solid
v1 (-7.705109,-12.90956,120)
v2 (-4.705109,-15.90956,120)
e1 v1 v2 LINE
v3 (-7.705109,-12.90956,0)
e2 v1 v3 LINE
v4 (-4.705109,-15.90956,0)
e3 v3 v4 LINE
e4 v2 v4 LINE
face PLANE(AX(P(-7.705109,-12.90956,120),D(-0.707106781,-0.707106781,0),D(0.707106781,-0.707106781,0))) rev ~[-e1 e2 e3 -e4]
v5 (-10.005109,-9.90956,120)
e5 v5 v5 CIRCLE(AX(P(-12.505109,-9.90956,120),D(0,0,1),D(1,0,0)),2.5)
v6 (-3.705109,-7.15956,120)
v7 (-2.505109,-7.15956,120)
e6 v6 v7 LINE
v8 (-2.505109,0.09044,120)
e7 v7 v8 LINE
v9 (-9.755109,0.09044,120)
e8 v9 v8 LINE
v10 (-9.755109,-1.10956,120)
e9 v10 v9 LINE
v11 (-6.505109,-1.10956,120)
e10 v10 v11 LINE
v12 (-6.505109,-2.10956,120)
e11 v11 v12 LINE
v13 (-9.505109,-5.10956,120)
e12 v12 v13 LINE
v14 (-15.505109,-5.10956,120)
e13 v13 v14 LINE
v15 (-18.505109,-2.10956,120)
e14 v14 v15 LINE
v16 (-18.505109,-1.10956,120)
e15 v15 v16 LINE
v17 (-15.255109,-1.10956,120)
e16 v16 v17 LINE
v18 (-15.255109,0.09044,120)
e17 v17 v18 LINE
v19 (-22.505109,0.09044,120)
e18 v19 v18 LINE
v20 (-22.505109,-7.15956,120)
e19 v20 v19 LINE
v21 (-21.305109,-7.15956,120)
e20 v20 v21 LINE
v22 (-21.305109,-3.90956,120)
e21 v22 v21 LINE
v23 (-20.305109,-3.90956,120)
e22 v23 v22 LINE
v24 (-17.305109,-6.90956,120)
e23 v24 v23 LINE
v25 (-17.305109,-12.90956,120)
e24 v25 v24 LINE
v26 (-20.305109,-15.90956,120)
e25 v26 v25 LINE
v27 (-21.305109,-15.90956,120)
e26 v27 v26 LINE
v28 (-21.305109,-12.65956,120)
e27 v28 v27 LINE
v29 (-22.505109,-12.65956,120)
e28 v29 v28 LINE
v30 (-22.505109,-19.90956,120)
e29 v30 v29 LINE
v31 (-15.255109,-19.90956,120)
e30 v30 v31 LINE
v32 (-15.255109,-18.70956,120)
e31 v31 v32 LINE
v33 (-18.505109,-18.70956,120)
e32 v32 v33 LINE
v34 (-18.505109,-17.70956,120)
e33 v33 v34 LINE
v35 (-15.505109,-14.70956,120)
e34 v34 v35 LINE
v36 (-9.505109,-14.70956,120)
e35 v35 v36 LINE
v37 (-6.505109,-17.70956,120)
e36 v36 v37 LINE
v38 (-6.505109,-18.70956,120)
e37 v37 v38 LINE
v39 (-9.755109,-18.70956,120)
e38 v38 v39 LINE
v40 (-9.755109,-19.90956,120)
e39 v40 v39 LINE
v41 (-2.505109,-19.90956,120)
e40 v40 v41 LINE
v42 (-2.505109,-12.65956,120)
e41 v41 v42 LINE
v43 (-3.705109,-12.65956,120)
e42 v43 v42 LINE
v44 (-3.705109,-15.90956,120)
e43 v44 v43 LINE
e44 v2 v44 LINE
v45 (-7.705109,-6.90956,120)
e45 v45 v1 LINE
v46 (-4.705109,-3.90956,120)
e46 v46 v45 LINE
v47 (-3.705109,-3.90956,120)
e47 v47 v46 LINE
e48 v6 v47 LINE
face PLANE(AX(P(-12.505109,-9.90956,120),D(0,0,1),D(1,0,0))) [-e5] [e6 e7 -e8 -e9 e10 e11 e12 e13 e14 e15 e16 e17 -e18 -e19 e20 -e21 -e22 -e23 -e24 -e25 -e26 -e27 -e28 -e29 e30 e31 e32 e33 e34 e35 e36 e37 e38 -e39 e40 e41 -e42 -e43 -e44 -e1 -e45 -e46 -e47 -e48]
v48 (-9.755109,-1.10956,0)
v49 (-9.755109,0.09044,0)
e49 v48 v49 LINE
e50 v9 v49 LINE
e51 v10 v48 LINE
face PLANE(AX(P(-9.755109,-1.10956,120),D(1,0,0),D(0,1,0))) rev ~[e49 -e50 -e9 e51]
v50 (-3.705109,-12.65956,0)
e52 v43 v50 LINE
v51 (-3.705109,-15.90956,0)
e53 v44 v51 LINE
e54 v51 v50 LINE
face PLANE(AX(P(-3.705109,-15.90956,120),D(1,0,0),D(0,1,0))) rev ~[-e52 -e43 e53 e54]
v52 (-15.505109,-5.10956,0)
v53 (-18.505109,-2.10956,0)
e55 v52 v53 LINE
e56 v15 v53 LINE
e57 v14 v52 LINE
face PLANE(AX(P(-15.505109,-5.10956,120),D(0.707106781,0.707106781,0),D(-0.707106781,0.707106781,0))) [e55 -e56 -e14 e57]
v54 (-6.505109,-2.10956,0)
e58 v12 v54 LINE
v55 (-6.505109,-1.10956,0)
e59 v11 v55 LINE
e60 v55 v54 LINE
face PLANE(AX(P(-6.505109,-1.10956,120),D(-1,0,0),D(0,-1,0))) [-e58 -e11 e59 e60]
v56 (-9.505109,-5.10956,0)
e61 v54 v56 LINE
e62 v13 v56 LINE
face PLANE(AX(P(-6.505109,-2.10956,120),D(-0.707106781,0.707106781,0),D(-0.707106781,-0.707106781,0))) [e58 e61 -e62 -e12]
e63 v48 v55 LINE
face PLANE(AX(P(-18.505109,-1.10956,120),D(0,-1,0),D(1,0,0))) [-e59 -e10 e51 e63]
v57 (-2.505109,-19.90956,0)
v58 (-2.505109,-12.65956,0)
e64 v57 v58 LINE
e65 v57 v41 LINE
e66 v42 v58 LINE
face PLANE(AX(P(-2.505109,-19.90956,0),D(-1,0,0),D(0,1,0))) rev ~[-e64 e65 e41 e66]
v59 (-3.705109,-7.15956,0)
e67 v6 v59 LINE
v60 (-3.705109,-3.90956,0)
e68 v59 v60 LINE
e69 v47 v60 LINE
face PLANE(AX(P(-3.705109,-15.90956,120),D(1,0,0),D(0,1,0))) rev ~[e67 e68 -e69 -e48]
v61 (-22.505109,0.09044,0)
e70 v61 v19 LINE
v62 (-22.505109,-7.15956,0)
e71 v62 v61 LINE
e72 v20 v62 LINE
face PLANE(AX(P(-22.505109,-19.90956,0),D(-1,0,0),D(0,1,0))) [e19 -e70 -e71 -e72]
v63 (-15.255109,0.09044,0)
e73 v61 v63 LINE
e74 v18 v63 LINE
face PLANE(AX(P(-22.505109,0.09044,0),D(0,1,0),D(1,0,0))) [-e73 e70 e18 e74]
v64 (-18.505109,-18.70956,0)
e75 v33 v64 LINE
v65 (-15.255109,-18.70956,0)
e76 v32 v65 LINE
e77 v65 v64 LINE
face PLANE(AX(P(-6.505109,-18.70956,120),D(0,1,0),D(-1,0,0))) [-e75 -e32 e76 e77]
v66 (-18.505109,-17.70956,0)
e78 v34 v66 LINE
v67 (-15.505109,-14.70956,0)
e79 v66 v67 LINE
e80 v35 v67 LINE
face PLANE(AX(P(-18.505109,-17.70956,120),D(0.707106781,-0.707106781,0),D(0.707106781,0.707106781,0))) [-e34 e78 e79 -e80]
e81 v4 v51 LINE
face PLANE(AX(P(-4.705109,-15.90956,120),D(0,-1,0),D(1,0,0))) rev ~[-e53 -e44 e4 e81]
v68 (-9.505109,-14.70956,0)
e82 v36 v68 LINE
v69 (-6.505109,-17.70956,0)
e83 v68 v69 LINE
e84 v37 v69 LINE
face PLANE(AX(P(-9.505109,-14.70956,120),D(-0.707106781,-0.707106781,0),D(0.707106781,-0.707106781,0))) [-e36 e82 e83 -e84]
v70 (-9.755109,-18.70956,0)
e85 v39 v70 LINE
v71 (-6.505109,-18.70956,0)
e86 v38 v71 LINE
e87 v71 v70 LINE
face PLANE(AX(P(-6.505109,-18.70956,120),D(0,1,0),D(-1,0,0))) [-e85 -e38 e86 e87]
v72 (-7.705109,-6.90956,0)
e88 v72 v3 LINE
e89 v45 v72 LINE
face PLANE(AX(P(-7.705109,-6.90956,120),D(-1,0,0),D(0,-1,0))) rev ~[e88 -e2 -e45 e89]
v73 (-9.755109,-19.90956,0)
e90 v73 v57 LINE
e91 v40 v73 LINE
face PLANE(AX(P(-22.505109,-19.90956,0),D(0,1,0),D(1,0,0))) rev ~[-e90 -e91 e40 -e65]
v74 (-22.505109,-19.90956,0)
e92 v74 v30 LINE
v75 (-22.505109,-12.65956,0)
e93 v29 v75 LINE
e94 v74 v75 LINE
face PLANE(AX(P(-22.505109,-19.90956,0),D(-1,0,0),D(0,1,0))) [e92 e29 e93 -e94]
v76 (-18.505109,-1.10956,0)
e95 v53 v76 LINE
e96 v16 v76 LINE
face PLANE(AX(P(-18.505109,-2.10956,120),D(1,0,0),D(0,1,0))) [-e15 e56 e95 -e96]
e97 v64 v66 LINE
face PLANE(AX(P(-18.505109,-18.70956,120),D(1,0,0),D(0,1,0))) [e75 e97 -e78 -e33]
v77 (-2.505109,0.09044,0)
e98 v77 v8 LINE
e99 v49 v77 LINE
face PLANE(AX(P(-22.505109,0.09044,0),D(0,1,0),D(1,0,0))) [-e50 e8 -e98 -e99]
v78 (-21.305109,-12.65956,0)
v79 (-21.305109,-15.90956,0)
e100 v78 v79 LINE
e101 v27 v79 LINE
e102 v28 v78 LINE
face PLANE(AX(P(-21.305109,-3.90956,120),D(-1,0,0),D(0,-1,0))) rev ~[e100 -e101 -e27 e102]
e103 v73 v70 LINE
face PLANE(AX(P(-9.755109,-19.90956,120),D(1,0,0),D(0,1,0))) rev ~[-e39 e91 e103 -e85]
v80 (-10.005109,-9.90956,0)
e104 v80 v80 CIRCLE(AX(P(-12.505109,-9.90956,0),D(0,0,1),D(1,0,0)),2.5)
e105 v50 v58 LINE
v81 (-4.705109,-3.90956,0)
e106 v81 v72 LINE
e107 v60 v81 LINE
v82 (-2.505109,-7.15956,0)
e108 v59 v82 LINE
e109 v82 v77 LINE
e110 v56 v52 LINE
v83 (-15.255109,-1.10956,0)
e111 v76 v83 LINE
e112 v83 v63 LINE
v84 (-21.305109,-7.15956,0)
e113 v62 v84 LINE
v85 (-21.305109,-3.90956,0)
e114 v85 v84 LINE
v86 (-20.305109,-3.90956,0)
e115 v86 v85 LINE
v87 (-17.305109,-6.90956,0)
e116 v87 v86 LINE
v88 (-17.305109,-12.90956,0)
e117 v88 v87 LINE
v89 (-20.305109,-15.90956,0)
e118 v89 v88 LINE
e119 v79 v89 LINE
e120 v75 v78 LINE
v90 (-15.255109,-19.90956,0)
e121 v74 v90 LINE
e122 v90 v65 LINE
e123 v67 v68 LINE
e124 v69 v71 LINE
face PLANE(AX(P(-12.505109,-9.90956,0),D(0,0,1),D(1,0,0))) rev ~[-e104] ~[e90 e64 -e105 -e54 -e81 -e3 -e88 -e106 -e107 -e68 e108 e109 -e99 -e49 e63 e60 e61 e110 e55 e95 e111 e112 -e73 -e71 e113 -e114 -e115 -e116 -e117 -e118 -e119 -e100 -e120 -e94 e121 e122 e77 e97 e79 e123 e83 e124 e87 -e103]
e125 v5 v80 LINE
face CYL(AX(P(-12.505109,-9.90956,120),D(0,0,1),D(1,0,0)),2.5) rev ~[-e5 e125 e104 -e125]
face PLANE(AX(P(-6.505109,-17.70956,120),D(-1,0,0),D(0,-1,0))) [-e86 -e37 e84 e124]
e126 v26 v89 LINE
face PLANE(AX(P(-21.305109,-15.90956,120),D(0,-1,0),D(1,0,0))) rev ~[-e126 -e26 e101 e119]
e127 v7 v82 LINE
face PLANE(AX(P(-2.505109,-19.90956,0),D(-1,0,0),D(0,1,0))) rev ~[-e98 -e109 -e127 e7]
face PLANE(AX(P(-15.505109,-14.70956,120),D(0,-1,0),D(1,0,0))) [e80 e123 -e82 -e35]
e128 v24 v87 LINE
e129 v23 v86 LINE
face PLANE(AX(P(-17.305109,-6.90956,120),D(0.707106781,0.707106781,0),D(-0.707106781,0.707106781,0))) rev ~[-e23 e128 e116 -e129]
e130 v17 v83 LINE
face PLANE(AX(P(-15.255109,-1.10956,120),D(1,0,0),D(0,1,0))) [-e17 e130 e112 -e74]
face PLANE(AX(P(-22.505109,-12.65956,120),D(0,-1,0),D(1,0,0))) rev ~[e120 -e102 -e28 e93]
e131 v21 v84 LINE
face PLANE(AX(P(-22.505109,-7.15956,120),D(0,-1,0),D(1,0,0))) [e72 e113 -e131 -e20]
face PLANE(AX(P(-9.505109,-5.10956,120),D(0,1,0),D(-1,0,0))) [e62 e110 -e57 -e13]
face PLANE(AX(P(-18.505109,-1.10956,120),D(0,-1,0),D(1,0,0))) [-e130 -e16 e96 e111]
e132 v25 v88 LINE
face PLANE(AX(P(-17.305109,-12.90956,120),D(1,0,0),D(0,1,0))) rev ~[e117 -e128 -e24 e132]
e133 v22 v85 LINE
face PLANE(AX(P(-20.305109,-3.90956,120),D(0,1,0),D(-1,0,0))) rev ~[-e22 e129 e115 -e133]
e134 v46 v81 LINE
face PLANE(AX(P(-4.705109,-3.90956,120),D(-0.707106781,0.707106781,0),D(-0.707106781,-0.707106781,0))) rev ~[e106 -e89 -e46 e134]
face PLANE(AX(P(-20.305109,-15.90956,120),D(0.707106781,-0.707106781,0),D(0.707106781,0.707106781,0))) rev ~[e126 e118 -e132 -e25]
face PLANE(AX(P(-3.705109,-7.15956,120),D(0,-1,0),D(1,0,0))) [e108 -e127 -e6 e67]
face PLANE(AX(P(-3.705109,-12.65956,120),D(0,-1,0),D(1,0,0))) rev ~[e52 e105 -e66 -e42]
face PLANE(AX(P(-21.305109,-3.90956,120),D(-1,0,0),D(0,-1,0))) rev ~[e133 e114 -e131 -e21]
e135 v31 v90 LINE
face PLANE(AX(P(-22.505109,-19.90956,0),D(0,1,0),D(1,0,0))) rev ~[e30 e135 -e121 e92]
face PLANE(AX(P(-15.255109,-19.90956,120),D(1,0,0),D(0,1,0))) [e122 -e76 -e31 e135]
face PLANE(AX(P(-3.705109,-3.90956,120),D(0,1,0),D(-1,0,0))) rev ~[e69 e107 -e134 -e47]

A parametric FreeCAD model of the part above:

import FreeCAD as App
import Part
import Sketcher
Q = App.Units.Quantity

doc = App.newDocument("Part")
body = doc.addObject("PartDesign::Body", "Body")

sketch1 = body.newObject("Sketcher::SketchObject", "Sketch")
sketch1.AttachmentSupport = (doc.getObject("XY_Plane"), [""])
sketch1.MapMode = "FlatFace"
sketch1.addGeometry([
    Part.LineSegment(App.Vector(-23, 0, 0), App.Vector(-23, -20, 0)),
    Part.LineSegment(App.Vector(-23, -20, 0), App.Vector(-3, -20, 0)),
    Part.LineSegment(App.Vector(-3, -20, 0), App.Vector(-3, 0, 0)),
    Part.LineSegment(App.Vector(-3, 0, 0), App.Vector(-23, 0, 0)),
], False)
sketch1.addConstraint([
    Sketcher.Constraint("Coincident", 0, 2, 1, 1),
    Sketcher.Constraint("Coincident", 1, 2, 2, 1),
    Sketcher.Constraint("Coincident", 2, 2, 3, 1),
    Sketcher.Constraint("Coincident", 3, 2, 0, 1),
    Sketcher.Constraint("Vertical", 0),
    Sketcher.Constraint("Horizontal", 1),
    Sketcher.Constraint("Vertical", 2),
    Sketcher.Constraint("Horizontal", 3),
    Sketcher.Constraint("Equal", 3, 0),
    Sketcher.Constraint("DistanceX", 1, 1, 1, 2, Q("20 mm")),
    Sketcher.Constraint("DistanceX", 0, 2, -1, 1, Q("22.505109 mm")),
    Sketcher.Constraint("DistanceY", 0, 2, -1, 1, Q("19.90956 mm")),
])
pad1 = body.newObject("PartDesign::Pad", "Pad")
pad1.Profile = sketch1
pad1.Length = 120

sketch2 = body.newObject("Sketcher::SketchObject", "Sketch001")
sketch2.AttachmentSupport = (doc.getObject("XY_Plane"), [""])
sketch2.MapMode = "FlatFace"
sketch2.AttachmentOffset = App.Placement(App.Vector(0, 0, 120), App.Rotation())
sketch2.addGeometry([
    Part.LineSegment(App.Vector(-22.5, -7.2, 0), App.Vector(-22.5, -12.7, 0)),
    Part.LineSegment(App.Vector(-22.5, -12.7, 0), App.Vector(-21.3, -12.7, 0)),
    Part.LineSegment(App.Vector(-21.3, -12.7, 0), App.Vector(-21.3, -7.2, 0)),
    Part.LineSegment(App.Vector(-21.3, -7.2, 0), App.Vector(-22.5, -7.2, 0)),
    Part.LineSegment(App.Vector(-15.3, 0.1, 0), App.Vector(-15.3, -1.1, 0)),
    Part.LineSegment(App.Vector(-15.3, -1.1, 0), App.Vector(-9.8, -1.1, 0)),
    Part.LineSegment(App.Vector(-9.8, -1.1, 0), App.Vector(-9.8, 0.1, 0)),
    Part.LineSegment(App.Vector(-9.8, 0.1, 0), App.Vector(-15.3, 0.1, 0)),
    Part.LineSegment(App.Vector(-3.7, -7.2, 0), App.Vector(-3.7, -12.7, 0)),
    Part.LineSegment(App.Vector(-3.7, -12.7, 0), App.Vector(-2.5, -12.7, 0)),
    Part.LineSegment(App.Vector(-2.5, -12.7, 0), App.Vector(-2.5, -7.2, 0)),
    Part.LineSegment(App.Vector(-2.5, -7.2, 0), App.Vector(-3.7, -7.2, 0)),
    Part.LineSegment(App.Vector(-15.3, -18.7, 0), App.Vector(-15.3, -19.9, 0)),
    Part.LineSegment(App.Vector(-15.3, -19.9, 0), App.Vector(-9.8, -19.9, 0)),
    Part.LineSegment(App.Vector(-9.8, -19.9, 0), App.Vector(-9.8, -18.7, 0)),
    Part.LineSegment(App.Vector(-9.8, -18.7, 0), App.Vector(-15.3, -18.7, 0)),
], False)
sketch2.addConstraint([
    Sketcher.Constraint("Coincident", 0, 2, 1, 1),
    Sketcher.Constraint("Coincident", 1, 2, 2, 1),
    Sketcher.Constraint("Coincident", 2, 2, 3, 1),
    Sketcher.Constraint("Coincident", 3, 2, 0, 1),
    Sketcher.Constraint("Coincident", 4, 2, 5, 1),
    Sketcher.Constraint("Coincident", 5, 2, 6, 1),
    Sketcher.Constraint("Coincident", 6, 2, 7, 1),
    Sketcher.Constraint("Coincident", 7, 2, 4, 1),
    Sketcher.Constraint("Coincident", 8, 2, 9, 1),
    Sketcher.Constraint("Coincident", 9, 2, 10, 1),
    Sketcher.Constraint("Coincident", 10, 2, 11, 1),
    Sketcher.Constraint("Coincident", 11, 2, 8, 1),
    Sketcher.Constraint("Coincident", 12, 2, 13, 1),
    Sketcher.Constraint("Coincident", 13, 2, 14, 1),
    Sketcher.Constraint("Coincident", 14, 2, 15, 1),
    Sketcher.Constraint("Coincident", 15, 2, 12, 1),
    Sketcher.Constraint("Vertical", 0),
    Sketcher.Constraint("Horizontal", 1),
    Sketcher.Constraint("Vertical", 2),
    Sketcher.Constraint("Horizontal", 3),
    Sketcher.Constraint("Vertical", 4),
    Sketcher.Constraint("Horizontal", 5),
    Sketcher.Constraint("Vertical", 6),
    Sketcher.Constraint("Horizontal", 7),
    Sketcher.Constraint("Vertical", 8),
    Sketcher.Constraint("Horizontal", 9),
    Sketcher.Constraint("Vertical", 10),
    Sketcher.Constraint("Horizontal", 11),
    Sketcher.Constraint("Vertical", 12),
    Sketcher.Constraint("Horizontal", 13),
    Sketcher.Constraint("Vertical", 14),
    Sketcher.Constraint("Horizontal", 15),
    Sketcher.Constraint("Horizontal", 1, 2, 8, 2),
    Sketcher.Constraint("Horizontal", 3, 2, 10, 2),
    Sketcher.Constraint("Vertical", 7, 2, 12, 2),
    Sketcher.Constraint("Vertical", 6, 2, 13, 2),
    Sketcher.Constraint("Equal", 3, 9),
    Sketcher.Constraint("Equal", 15, 0),
    Sketcher.Constraint("Equal", 11, 4),
    Sketcher.Constraint("Equal", 6, 12),
    Sketcher.Constraint("DistanceX", 1, 1, 1, 2, Q("1.2 mm")),
    Sketcher.Constraint("DistanceX", 5, 1, 5, 2, Q("5.5 mm")),
    Sketcher.Constraint("DistanceX", 1, 2, 8, 2, Q("17.6 mm")),
    Sketcher.Constraint("DistanceX", 2, 2, 4, 2, Q("6.05 mm")),
    Sketcher.Constraint("DistanceY", 2, 2, 4, 2, Q("6.05 mm")),
    Sketcher.Constraint("DistanceY", 12, 2, 1, 2, Q("7.25 mm")),
    Sketcher.Constraint("DistanceX", 0, 2, -1, 1, Q("22.505109 mm")),
    Sketcher.Constraint("DistanceY", 0, 2, -1, 1, Q("12.65956 mm")),
])
pocket1 = body.newObject("PartDesign::Pocket", "Pocket")
pocket1.Profile = sketch2
pocket1.Type = "ThroughAll"

sketch3 = body.newObject("Sketcher::SketchObject", "Sketch002")
sketch3.AttachmentSupport = (doc.getObject("XY_Plane"), [""])
sketch3.MapMode = "FlatFace"
sketch3.AttachmentOffset = App.Placement(App.Vector(0, 0, 120), App.Rotation())
sketch3.addGeometry([
    Part.LineSegment(App.Vector(-21.3, -15.9, 0), App.Vector(-20.3, -15.9, 0)),
    Part.LineSegment(App.Vector(-20.3, -15.9, 0), App.Vector(-17.3, -12.9, 0)),
    Part.LineSegment(App.Vector(-17.3, -12.9, 0), App.Vector(-17.3, -6.9, 0)),
    Part.LineSegment(App.Vector(-17.3, -6.9, 0), App.Vector(-20.3, -3.9, 0)),
    Part.LineSegment(App.Vector(-20.3, -3.9, 0), App.Vector(-21.3, -3.9, 0)),
    Part.LineSegment(App.Vector(-21.3, -3.9, 0), App.Vector(-21.3, -15.9, 0)),
    Part.LineSegment(App.Vector(-6.5, -1.1, 0), App.Vector(-18.5, -1.1, 0)),
    Part.LineSegment(App.Vector(-18.5, -1.1, 0), App.Vector(-18.5, -2.1, 0)),
    Part.LineSegment(App.Vector(-18.5, -2.1, 0), App.Vector(-15.5, -5.1, 0)),
    Part.LineSegment(App.Vector(-15.5, -5.1, 0), App.Vector(-9.5, -5.1, 0)),
    Part.LineSegment(App.Vector(-9.5, -5.1, 0), App.Vector(-6.5, -2.1, 0)),
    Part.LineSegment(App.Vector(-6.5, -2.1, 0), App.Vector(-6.5, -1.1, 0)),
    Part.LineSegment(App.Vector(-3.7, -3.9, 0), App.Vector(-4.7, -3.9, 0)),
    Part.LineSegment(App.Vector(-4.7, -3.9, 0), App.Vector(-7.7, -6.9, 0)),
    Part.LineSegment(App.Vector(-7.7, -6.9, 0), App.Vector(-7.7, -12.9, 0)),
    Part.LineSegment(App.Vector(-7.7, -12.9, 0), App.Vector(-4.7, -15.9, 0)),
    Part.LineSegment(App.Vector(-4.7, -15.9, 0), App.Vector(-3.7, -15.9, 0)),
    Part.LineSegment(App.Vector(-3.7, -15.9, 0), App.Vector(-3.7, -3.9, 0)),
    Part.LineSegment(App.Vector(-18.5, -18.7, 0), App.Vector(-6.5, -18.7, 0)),
    Part.LineSegment(App.Vector(-6.5, -18.7, 0), App.Vector(-6.5, -17.7, 0)),
    Part.LineSegment(App.Vector(-6.5, -17.7, 0), App.Vector(-9.5, -14.7, 0)),
    Part.LineSegment(App.Vector(-9.5, -14.7, 0), App.Vector(-15.5, -14.7, 0)),
    Part.LineSegment(App.Vector(-15.5, -14.7, 0), App.Vector(-18.5, -17.7, 0)),
    Part.LineSegment(App.Vector(-18.5, -17.7, 0), App.Vector(-18.5, -18.7, 0)),
], False)
sketch3.addConstraint([
    Sketcher.Constraint("Coincident", 0, 2, 1, 1),
    Sketcher.Constraint("Coincident", 1, 2, 2, 1),
    Sketcher.Constraint("Coincident", 2, 2, 3, 1),
    Sketcher.Constraint("Coincident", 3, 2, 4, 1),
    Sketcher.Constraint("Coincident", 4, 2, 5, 1),
    Sketcher.Constraint("Coincident", 5, 2, 0, 1),
    Sketcher.Constraint("Coincident", 6, 2, 7, 1),
    Sketcher.Constraint("Coincident", 7, 2, 8, 1),
    Sketcher.Constraint("Coincident", 8, 2, 9, 1),
    Sketcher.Constraint("Coincident", 9, 2, 10, 1),
    Sketcher.Constraint("Coincident", 10, 2, 11, 1),
    Sketcher.Constraint("Coincident", 11, 2, 6, 1),
    Sketcher.Constraint("Coincident", 12, 2, 13, 1),
    Sketcher.Constraint("Coincident", 13, 2, 14, 1),
    Sketcher.Constraint("Coincident", 14, 2, 15, 1),
    Sketcher.Constraint("Coincident", 15, 2, 16, 1),
    Sketcher.Constraint("Coincident", 16, 2, 17, 1),
    Sketcher.Constraint("Coincident", 17, 2, 12, 1),
    Sketcher.Constraint("Coincident", 18, 2, 19, 1),
    Sketcher.Constraint("Coincident", 19, 2, 20, 1),
    Sketcher.Constraint("Coincident", 20, 2, 21, 1),
    Sketcher.Constraint("Coincident", 21, 2, 22, 1),
    Sketcher.Constraint("Coincident", 22, 2, 23, 1),
    Sketcher.Constraint("Coincident", 23, 2, 18, 1),
    Sketcher.Constraint("Horizontal", 0),
    Sketcher.Constraint("Vertical", 2),
    Sketcher.Constraint("Horizontal", 4),
    Sketcher.Constraint("Vertical", 5),
    Sketcher.Constraint("Horizontal", 6),
    Sketcher.Constraint("Vertical", 7),
    Sketcher.Constraint("Horizontal", 9),
    Sketcher.Constraint("Vertical", 11),
    Sketcher.Constraint("Horizontal", 12),
    Sketcher.Constraint("Vertical", 14),
    Sketcher.Constraint("Horizontal", 16),
    Sketcher.Constraint("Vertical", 17),
    Sketcher.Constraint("Horizontal", 18),
    Sketcher.Constraint("Vertical", 19),
    Sketcher.Constraint("Horizontal", 21),
    Sketcher.Constraint("Vertical", 23),
    Sketcher.Constraint("Perpendicular", 1, 3),
    Sketcher.Constraint("Parallel", 3, 8),
    Sketcher.Constraint("Perpendicular", 8, 10),
    Sketcher.Constraint("Parallel", 10, 13),
    Sketcher.Constraint("Perpendicular", 13, 15),
    Sketcher.Constraint("Parallel", 15, 20),
    Sketcher.Constraint("Perpendicular", 20, 22),
    Sketcher.Constraint("Horizontal", 7, 2, 10, 2),
    Sketcher.Constraint("Horizontal", 4, 2, 12, 2),
    Sketcher.Constraint("Horizontal", 2, 2, 13, 2),
    Sketcher.Constraint("Horizontal", 1, 2, 14, 2),
    Sketcher.Constraint("Horizontal", 5, 2, 15, 2),
    Sketcher.Constraint("Horizontal", 19, 2, 22, 2),
    Sketcher.Constraint("Vertical", 0, 2, 3, 2),
    Sketcher.Constraint("Vertical", 12, 2, 15, 2),
    Sketcher.Constraint("Vertical", 11, 2, 18, 2),
    Sketcher.Constraint("Vertical", 9, 2, 20, 2),
    Sketcher.Constraint("Vertical", 8, 2, 21, 2),
    Sketcher.Constraint("Equal", 4, 12),
    Sketcher.Constraint("Equal", 21, 2),
    Sketcher.Constraint("Equal", 18, 5),
    Sketcher.Constraint("Equal", 16, 7),
    Sketcher.Constraint("Equal", 11, 19),
    Sketcher.Constraint("DistanceX", 0, 1, 0, 2, Q("1 mm")),
    Sketcher.Constraint("DistanceX", 6, 2, 6, 1, Q("12 mm")),
    Sketcher.Constraint("DistanceX", 9, 1, 9, 2, Q("6 mm")),
    Sketcher.Constraint("DistanceX", 3, 2, 6, 2, Q("1.8 mm")),
    Sketcher.Constraint("DistanceY", 3, 2, 6, 2, Q("2.8 mm")),
    Sketcher.Constraint("DistanceX", 10, 2, 12, 2, Q("1.8 mm")),
    Sketcher.Constraint("DistanceY", 18, 2, 15, 2, Q("2.8 mm")),
    Sketcher.Constraint("DistanceX", 0, 2, -1, 1, Q("20.305109 mm")),
    Sketcher.Constraint("DistanceY", 0, 2, -1, 1, Q("15.90956 mm")),
])
pocket2 = body.newObject("PartDesign::Pocket", "Pocket001")
pocket2.Profile = sketch3
pocket2.Type = "ThroughAll"

sketch4 = body.newObject("Sketcher::SketchObject", "Sketch003")
sketch4.AttachmentSupport = (doc.getObject("XY_Plane"), [""])
sketch4.MapMode = "FlatFace"
sketch4.AttachmentOffset = App.Placement(App.Vector(0, 0, 120), App.Rotation())
sketch4.addGeometry(Part.Circle(App.Vector(-12.5, -9.9, 0), App.Vector(0, 0, 1), 2.5), False)
sketch4.addConstraint([
    Sketcher.Constraint("Diameter", 0, Q("5 mm")),
    Sketcher.Constraint("DistanceX", 0, 3, -1, 1, Q("12.505109 mm")),
    Sketcher.Constraint("DistanceY", 0, 3, -1, 1, Q("9.90956 mm")),
])
pocket3 = body.newObject("PartDesign::Pocket", "Pocket002")
pocket3.Profile = sketch4
pocket3.Type = "ThroughAll"

doc.recompute()
